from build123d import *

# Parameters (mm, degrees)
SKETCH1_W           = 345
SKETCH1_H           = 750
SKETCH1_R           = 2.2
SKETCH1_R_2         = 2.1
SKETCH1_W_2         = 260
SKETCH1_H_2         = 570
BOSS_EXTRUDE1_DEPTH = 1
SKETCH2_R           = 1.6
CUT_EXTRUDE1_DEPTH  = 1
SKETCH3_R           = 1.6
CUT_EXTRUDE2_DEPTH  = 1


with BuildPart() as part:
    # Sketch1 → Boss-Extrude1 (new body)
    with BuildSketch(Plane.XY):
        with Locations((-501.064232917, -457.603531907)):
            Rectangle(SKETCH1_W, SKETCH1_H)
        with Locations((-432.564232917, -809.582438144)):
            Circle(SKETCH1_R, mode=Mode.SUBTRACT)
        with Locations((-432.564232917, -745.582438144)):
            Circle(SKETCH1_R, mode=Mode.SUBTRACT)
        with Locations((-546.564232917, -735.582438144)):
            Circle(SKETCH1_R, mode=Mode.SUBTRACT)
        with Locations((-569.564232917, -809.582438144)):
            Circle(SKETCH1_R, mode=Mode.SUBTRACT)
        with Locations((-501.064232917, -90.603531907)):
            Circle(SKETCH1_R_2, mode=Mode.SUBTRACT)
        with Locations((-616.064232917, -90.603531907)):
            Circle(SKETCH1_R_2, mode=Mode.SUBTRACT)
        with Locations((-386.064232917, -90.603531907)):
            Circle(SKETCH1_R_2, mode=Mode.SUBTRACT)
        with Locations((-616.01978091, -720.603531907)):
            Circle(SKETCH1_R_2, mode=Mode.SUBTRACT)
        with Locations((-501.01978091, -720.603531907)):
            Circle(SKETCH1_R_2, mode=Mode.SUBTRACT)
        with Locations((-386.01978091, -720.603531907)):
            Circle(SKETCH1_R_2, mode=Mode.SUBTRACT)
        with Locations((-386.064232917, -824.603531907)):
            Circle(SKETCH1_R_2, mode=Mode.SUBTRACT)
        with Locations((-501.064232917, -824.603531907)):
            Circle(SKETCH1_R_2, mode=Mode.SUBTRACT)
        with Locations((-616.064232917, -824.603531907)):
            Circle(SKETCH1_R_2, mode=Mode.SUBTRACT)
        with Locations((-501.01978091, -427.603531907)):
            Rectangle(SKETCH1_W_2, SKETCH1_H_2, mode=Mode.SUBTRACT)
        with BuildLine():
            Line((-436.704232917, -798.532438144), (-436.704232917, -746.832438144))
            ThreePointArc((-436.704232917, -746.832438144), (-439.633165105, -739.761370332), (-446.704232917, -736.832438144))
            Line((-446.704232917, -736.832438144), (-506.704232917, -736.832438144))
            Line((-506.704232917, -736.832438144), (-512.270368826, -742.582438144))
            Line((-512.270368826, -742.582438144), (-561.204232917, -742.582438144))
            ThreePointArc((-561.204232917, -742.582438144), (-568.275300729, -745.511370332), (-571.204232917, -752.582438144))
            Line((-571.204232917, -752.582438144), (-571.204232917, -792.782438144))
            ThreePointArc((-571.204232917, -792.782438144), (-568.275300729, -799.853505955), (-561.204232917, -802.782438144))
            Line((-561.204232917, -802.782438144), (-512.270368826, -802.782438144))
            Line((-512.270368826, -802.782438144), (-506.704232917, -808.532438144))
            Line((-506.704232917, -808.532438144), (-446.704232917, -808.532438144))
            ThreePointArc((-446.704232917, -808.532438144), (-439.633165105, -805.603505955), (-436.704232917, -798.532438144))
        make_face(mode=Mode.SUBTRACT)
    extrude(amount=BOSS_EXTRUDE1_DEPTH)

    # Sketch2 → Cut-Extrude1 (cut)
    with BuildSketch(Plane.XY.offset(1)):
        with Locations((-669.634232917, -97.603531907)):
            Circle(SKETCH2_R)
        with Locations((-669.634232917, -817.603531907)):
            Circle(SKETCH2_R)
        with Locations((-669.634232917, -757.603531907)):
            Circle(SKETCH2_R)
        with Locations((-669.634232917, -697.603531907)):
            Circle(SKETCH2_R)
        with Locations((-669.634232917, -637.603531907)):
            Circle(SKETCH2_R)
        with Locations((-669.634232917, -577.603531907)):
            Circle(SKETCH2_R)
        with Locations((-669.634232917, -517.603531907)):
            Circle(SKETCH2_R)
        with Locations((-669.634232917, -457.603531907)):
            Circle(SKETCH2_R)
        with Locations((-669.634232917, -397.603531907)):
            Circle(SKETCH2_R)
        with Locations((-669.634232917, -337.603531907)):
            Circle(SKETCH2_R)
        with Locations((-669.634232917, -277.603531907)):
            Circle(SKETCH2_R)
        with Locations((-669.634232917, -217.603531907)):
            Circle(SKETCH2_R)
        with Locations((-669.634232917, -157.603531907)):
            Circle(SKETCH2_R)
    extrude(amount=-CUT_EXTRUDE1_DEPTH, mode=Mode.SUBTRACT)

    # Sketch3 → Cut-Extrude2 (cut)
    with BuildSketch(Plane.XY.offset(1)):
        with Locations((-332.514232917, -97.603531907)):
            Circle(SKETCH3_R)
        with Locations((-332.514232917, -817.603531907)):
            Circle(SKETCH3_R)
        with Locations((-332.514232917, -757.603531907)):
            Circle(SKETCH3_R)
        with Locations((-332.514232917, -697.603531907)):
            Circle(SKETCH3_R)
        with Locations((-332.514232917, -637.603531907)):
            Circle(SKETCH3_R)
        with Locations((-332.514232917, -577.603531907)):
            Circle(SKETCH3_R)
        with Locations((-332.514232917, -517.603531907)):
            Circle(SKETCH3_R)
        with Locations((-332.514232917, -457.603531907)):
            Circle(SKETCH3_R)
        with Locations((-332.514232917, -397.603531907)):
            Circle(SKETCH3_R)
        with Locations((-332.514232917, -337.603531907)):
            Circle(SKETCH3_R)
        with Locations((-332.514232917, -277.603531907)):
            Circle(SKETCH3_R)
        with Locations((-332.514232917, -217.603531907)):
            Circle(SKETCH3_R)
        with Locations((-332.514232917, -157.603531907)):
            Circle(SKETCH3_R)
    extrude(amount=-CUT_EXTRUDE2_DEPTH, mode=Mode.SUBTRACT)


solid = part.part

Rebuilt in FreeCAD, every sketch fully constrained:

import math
import FreeCAD as App
import Part
import Sketcher

V = App.Vector


def add_polygon(sketch, points):
    """Adds a closed chain of lines whose ends are joined by coincident constraints."""
    first, n = sketch.GeometryCount, len(points)
    for a, b in zip(points, points[1:] + points[:1]):
        sketch.addGeometry(Part.LineSegment(App.Vector(*a, 0), App.Vector(*b, 0)), False)
    for i in range(n):
        sketch.addConstraint(Sketcher.Constraint("Coincident", first + i, 2, first + (i + 1) % n, 1))

doc = App.newDocument("Part")
body = doc.addObject("PartDesign::Body", "Body")

# Sketch on XY plane
sketch1 = body.newObject("Sketcher::SketchObject", "Sketch")
sketch1.AttachmentSupport = (doc.getObject("XY_Plane"), [""])
sketch1.MapMode = "FlatFace"
add_polygon(sketch1, [(-673.564233, -82.603532), (-673.564233, -832.603532), (-328.564233, -832.603532), (-328.564233, -82.603532)])  # lines 0-3
sketch1.addGeometry(Part.Circle(V(-616.064233, -824.603532, 0), V(0, 0, 1), 2.1), False)  # 4
sketch1.addGeometry(Part.Circle(V(-569.564233, -809.582438, 0), V(0, 0, 1), 2.2), False)  # 5
sketch1.addGeometry(Part.Circle(V(-616.019781, -720.603532, 0), V(0, 0, 1), 2.1), False)  # 6
sketch1.addGeometry(Part.Circle(V(-546.564233, -735.582438, 0), V(0, 0, 1), 2.2), False)  # 7
sketch1.addGeometry(Part.Circle(V(-501.064233, -824.603532, 0), V(0, 0, 1), 2.1), False)  # 8
sketch1.addGeometry(Part.LineSegment(V(-436.704233, -746.832438, 0), V(-436.704233, -798.532438, 0)), False)  # 9
sketch1.addGeometry(Part.ArcOfCircle(Part.Circle(V(-446.704233, -798.532438, 0), V(0, 0, 1), 10), math.radians(-90), math.radians(0)), False)  # 10
sketch1.addGeometry(Part.LineSegment(V(-446.704233, -808.532438, 0), V(-506.704233, -808.532438, 0)), False)  # 11
sketch1.addGeometry(Part.LineSegment(V(-506.704233, -808.532438, 0), V(-512.270369, -802.782438, 0)), False)  # 12
sketch1.addGeometry(Part.LineSegment(V(-512.270369, -802.782438, 0), V(-561.204233, -802.782438, 0)), False)  # 13
sketch1.addGeometry(Part.ArcOfCircle(Part.Circle(V(-561.204233, -792.782438, 0), V(0, 0, 1), 10), math.radians(-180), math.radians(-90)), False)  # 14
sketch1.addGeometry(Part.LineSegment(V(-571.204233, -792.782438, 0), V(-571.204233, -752.582438, 0)), False)  # 15
sketch1.addGeometry(Part.ArcOfCircle(Part.Circle(V(-561.204233, -752.582438, 0), V(0, 0, 1), 10), math.radians(90), math.radians(180)), False)  # 16
sketch1.addGeometry(Part.LineSegment(V(-561.204233, -742.582438, 0), V(-512.270369, -742.582438, 0)), False)  # 17
sketch1.addGeometry(Part.LineSegment(V(-512.270369, -742.582438, 0), V(-506.704233, -736.832438, 0)), False)  # 18
sketch1.addGeometry(Part.LineSegment(V(-506.704233, -736.832438, 0), V(-446.704233, -736.832438, 0)), False)  # 19
sketch1.addGeometry(Part.ArcOfCircle(Part.Circle(V(-446.704233, -746.832438, 0), V(0, 0, 1), 10), math.radians(0), math.radians(90)), False)  # 20
sketch1.addGeometry(Part.Circle(V(-501.019781, -720.603532, 0), V(0, 0, 1), 2.1), False)  # 21
sketch1.addGeometry(Part.Circle(V(-432.564233, -809.582438, 0), V(0, 0, 1), 2.2), False)  # 22
sketch1.addGeometry(Part.Circle(V(-432.564233, -745.582438, 0), V(0, 0, 1), 2.2), False)  # 23
sketch1.addGeometry(Part.Circle(V(-386.064233, -824.603532, 0), V(0, 0, 1), 2.1), False)  # 24
sketch1.addGeometry(Part.Circle(V(-386.019781, -720.603532, 0), V(0, 0, 1), 2.1), False)  # 25
sketch1.addGeometry(Part.Circle(V(-616.064233, -90.603532, 0), V(0, 0, 1), 2.1), False)  # 26
sketch1.addGeometry(Part.Circle(V(-501.064233, -90.603532, 0), V(0, 0, 1), 2.1), False)  # 27
add_polygon(sketch1, [(-371.019781, -712.603532), (-631.019781, -712.603532), (-631.019781, -142.603532), (-371.019781, -142.603532)])  # lines 28-31
sketch1.addGeometry(Part.Circle(V(-386.064233, -90.603532, 0), V(0, 0, 1), 2.1), False)  # 32
sketch1.addConstraint([
    Sketcher.Constraint("Tangent", 9, 2, 10, 2),
    Sketcher.Constraint("Tangent", 10, 1, 11, 1),
    Sketcher.Constraint("Coincident", 11, 2, 12, 1),
    Sketcher.Constraint("Coincident", 12, 2, 13, 1),
    Sketcher.Constraint("Tangent", 13, 2, 14, 2),
    Sketcher.Constraint("Tangent", 14, 1, 15, 1),
    Sketcher.Constraint("Tangent", 15, 2, 16, 2),
    Sketcher.Constraint("Tangent", 16, 1, 17, 1),
    Sketcher.Constraint("Coincident", 17, 2, 18, 1),
    Sketcher.Constraint("Coincident", 18, 2, 19, 1),
    Sketcher.Constraint("Tangent", 19, 2, 20, 2),
    Sketcher.Constraint("Tangent", 20, 1, 9, 1),
    Sketcher.Constraint("Vertical", 0),
    Sketcher.Constraint("Horizontal", 1),
    Sketcher.Constraint("Vertical", 2),
    Sketcher.Constraint("Horizontal", 3),
    Sketcher.Constraint("Vertical", 9),
    Sketcher.Constraint("Horizontal", 11),
    Sketcher.Constraint("Horizontal", 13),
    Sketcher.Constraint("Vertical", 15),
    Sketcher.Constraint("Horizontal", 17),
    Sketcher.Constraint("Horizontal", 19),
    Sketcher.Constraint("Horizontal", 28),
    Sketcher.Constraint("Vertical", 29),
    Sketcher.Constraint("Horizontal", 30),
    Sketcher.Constraint("Vertical", 31),
    Sketcher.Constraint("Equal", 4, 6),
    Sketcher.Constraint("Equal", 5, 7),
    Sketcher.Constraint("Equal", 6, 8),
    Sketcher.Constraint("Equal", 10, 14),
    Sketcher.Constraint("Equal", 14, 16),
    Sketcher.Constraint("Equal", 16, 20),
    Sketcher.Constraint("Equal", 8, 21),
    Sketcher.Constraint("Equal", 7, 22),
    Sketcher.Constraint("Equal", 22, 23),
    Sketcher.Constraint("Equal", 21, 24),
    Sketcher.Constraint("Equal", 24, 25),
    Sketcher.Constraint("Equal", 25, 26),
    Sketcher.Constraint("Equal", 26, 27),
    Sketcher.Constraint("Equal", 27, 32),
    Sketcher.Constraint("Horizontal", 4, 3, 8, 3),
    Sketcher.Constraint("Horizontal", 6, 3, 21, 3),
    Sketcher.Constraint("Horizontal", 5, 3, 22, 3),
    Sketcher.Constraint("Horizontal", 8, 3, 24, 3),
    Sketcher.Constraint("Horizontal", 21, 3, 25, 3),
    Sketcher.Constraint("Horizontal", 26, 3, 27, 3),
    Sketcher.Constraint("Horizontal", 27, 3, 32, 3),
    Sketcher.Constraint("Vertical", 22, 3, 23, 3),
    Sketcher.Constraint("Vertical", 4, 3, 26, 3),
    Sketcher.Constraint("Vertical", 8, 3, 27, 3),
    Sketcher.Constraint("Vertical", 24, 3, 32, 3),
    Sketcher.Constraint("Vertical", 12, 2, 17, 2),
    Sketcher.Constraint("Vertical", 11, 2, 18, 2),
    Sketcher.Constraint("Equal", 12, 18),
    Sketcher.Constraint("Radius", 10, 10.0),
    Sketcher.Constraint("Diameter", 4, 4.2),
    Sketcher.Constraint("Diameter", 5, 4.4),
    Sketcher.Constraint("DistanceX", 1, 1, 1, 2, 345.0),
    Sketcher.Constraint("DistanceX", 11, 2, 11, 1, 60.0),
    Sketcher.Constraint("DistanceX", 28, 2, 28, 1, 260.0),
    Sketcher.Constraint("DistanceY", 0, 2, 0, 1, 750.0),
    Sketcher.Constraint("DistanceY", 29, 1, 29, 2, 570.0),
    Sketcher.Constraint("DistanceY", 9, 2, 9, 1, 51.7),
    Sketcher.Constraint("DistanceY", 15, 1, 15, 2, 40.2),
    Sketcher.Constraint("DistanceY", 4, 3, 6, 3, 104.0),
    Sketcher.Constraint("DistanceX", 5, 3, 7, 3, 23.0),
    Sketcher.Constraint("DistanceY", 5, 3, 7, 3, 74.0),
    Sketcher.Constraint("DistanceX", 4, 3, 8, 3, 115.0),
    Sketcher.Constraint("DistanceY", 16, 3, 7, 3, 17.0),
    Sketcher.Constraint("DistanceY", 22, 3, 23, 3, 64.0),
    Sketcher.Constraint("DistanceX", 8, 3, 24, 3, 115.0),
    Sketcher.Constraint("DistanceY", 6, 3, 26, 3, 630.0),
    Sketcher.Constraint("DistanceY", 0, 2, 4, 3, 8.0),
    Sketcher.Constraint("DistanceX", 0, 2, 5, 3, 104.0),
    Sketcher.Constraint("DistanceX", 22, 3, 1, 2, 104.0),
    Sketcher.Constraint("DistanceX", 28, 2, 6, 3, 15.0),
    Sketcher.Constraint("DistanceY", 6, 3, 28, 2, 8.0),
    Sketcher.Constraint("DistanceX", 25, 3, 31, 2, 15.0),
    Sketcher.Constraint("DistanceX", 4, 3, 5, 3, 46.5),
    Sketcher.Constraint("DistanceX", 16, 3, 20, 3, 114.5),
    Sketcher.Constraint("DistanceX", 8, 3, 10, 3, 54.36),
    Sketcher.Constraint("DistanceX", 13, 2, 13, 1, 48.933864),
    Sketcher.Constraint("DistanceY", 4, 3, -1, 1, 824.603532),
    Sketcher.Constraint("DistanceY", 5, 3, -1, 1, 809.582438),
    Sketcher.Constraint("DistanceX", 6, 3, -1, 1, 616.019781),
    Sketcher.Constraint("DistanceX", 21, 3, -1, 1, 501.019781),
    Sketcher.Constraint("DistanceX", 12, 2, -1, 1, 512.270369),
])
pad1 = body.newObject("PartDesign::Pad", "Pad")
pad1.Profile = sketch1
pad1.Length = 1

# Sketch on XY plane
sketch2 = body.newObject("Sketcher::SketchObject", "Sketch001")
sketch2.AttachmentSupport = (doc.getObject("XY_Plane"), [""])
sketch2.MapMode = "FlatFace"
sketch2.AttachmentOffset = App.Placement(V(0, 0, 1), App.Rotation())
sketch2.addGeometry([
    Part.Circle(V(-669.634233, -97.603532, 0), V(0, 0, 1), 1.6),  # 0
    Part.Circle(V(-669.634233, -817.603532, 0), V(0, 0, 1), 1.6),  # 1
    Part.Circle(V(-669.634233, -757.603532, 0), V(0, 0, 1), 1.6),  # 2
    Part.Circle(V(-669.634233, -697.603532, 0), V(0, 0, 1), 1.6),  # 3
    Part.Circle(V(-669.634233, -637.603532, 0), V(0, 0, 1), 1.6),  # 4
    Part.Circle(V(-669.634233, -577.603532, 0), V(0, 0, 1), 1.6),  # 5
    Part.Circle(V(-669.634233, -517.603532, 0), V(0, 0, 1), 1.6),  # 6
    Part.Circle(V(-669.634233, -457.603532, 0), V(0, 0, 1), 1.6),  # 7
    Part.Circle(V(-669.634233, -397.603532, 0), V(0, 0, 1), 1.6),  # 8
    Part.Circle(V(-669.634233, -337.603532, 0), V(0, 0, 1), 1.6),  # 9
    Part.Circle(V(-669.634233, -277.603532, 0), V(0, 0, 1), 1.6),  # 10
    Part.Circle(V(-669.634233, -217.603532, 0), V(0, 0, 1), 1.6),  # 11
    Part.Circle(V(-669.634233, -157.603532, 0), V(0, 0, 1), 1.6),  # 12
], False)
sketch2.addConstraint([
    Sketcher.Constraint("Equal", 0, 1),
    Sketcher.Constraint("Equal", 1, 2),
    Sketcher.Constraint("Equal", 2, 3),
    Sketcher.Constraint("Equal", 3, 4),
    Sketcher.Constraint("Equal", 4, 5),
    Sketcher.Constraint("Equal", 5, 6),
    Sketcher.Constraint("Equal", 6, 7),
    Sketcher.Constraint("Equal", 7, 8),
    Sketcher.Constraint("Equal", 8, 9),
    Sketcher.Constraint("Equal", 9, 10),
    Sketcher.Constraint("Equal", 10, 11),
    Sketcher.Constraint("Equal", 11, 12),
    Sketcher.Constraint("Vertical", 0, 3, 1, 3),
    Sketcher.Constraint("Vertical", 1, 3, 2, 3),
    Sketcher.Constraint("Vertical", 2, 3, 3, 3),
    Sketcher.Constraint("Vertical", 3, 3, 4, 3),
    Sketcher.Constraint("Vertical", 4, 3, 5, 3),
    Sketcher.Constraint("Vertical", 5, 3, 6, 3),
    Sketcher.Constraint("Vertical", 6, 3, 7, 3),
    Sketcher.Constraint("Vertical", 7, 3, 8, 3),
    Sketcher.Constraint("Vertical", 8, 3, 9, 3),
    Sketcher.Constraint("Vertical", 9, 3, 10, 3),
    Sketcher.Constraint("Vertical", 10, 3, 11, 3),
    Sketcher.Constraint("Vertical", 11, 3, 12, 3),
    Sketcher.Constraint("Diameter", 0, 3.2),
    Sketcher.Constraint("DistanceY", 1, 3, 0, 3, 720.0),
    Sketcher.Constraint("DistanceY", 1, 3, 2, 3, 60.0),
    Sketcher.Constraint("DistanceY", 2, 3, 3, 3, 60.0),
    Sketcher.Constraint("DistanceY", 3, 3, 4, 3, 60.0),
    Sketcher.Constraint("DistanceY", 4, 3, 5, 3, 60.0),
    Sketcher.Constraint("DistanceY", 5, 3, 6, 3, 60.0),
    Sketcher.Constraint("DistanceY", 6, 3, 7, 3, 60.0),
    Sketcher.Constraint("DistanceY", 7, 3, 8, 3, 60.0),
    Sketcher.Constraint("DistanceY", 8, 3, 9, 3, 60.0),
    Sketcher.Constraint("DistanceY", 9, 3, 10, 3, 60.0),
    Sketcher.Constraint("DistanceY", 10, 3, 11, 3, 60.0),
    Sketcher.Constraint("DistanceY", 12, 3, 0, 3, 60.0),
    Sketcher.Constraint("DistanceY", 0, 3, -1, 1, 97.603532),
    Sketcher.Constraint("DistanceX", 0, 3, -1, 1, 669.634233),
])
pocket1 = body.newObject("PartDesign::Pocket", "Pocket")
pocket1.Profile = sketch2
pocket1.Length = 1

# Sketch on XY plane
sketch3 = body.newObject("Sketcher::SketchObject", "Sketch002")
sketch3.AttachmentSupport = (doc.getObject("XY_Plane"), [""])
sketch3.MapMode = "FlatFace"
sketch3.AttachmentOffset = App.Placement(V(0, 0, 1), App.Rotation())
sketch3.addGeometry([
    Part.Circle(V(-332.514233, -97.603532, 0), V(0, 0, 1), 1.6),  # 0
    Part.Circle(V(-332.514233, -817.603532, 0), V(0, 0, 1), 1.6),  # 1
    Part.Circle(V(-332.514233, -757.603532, 0), V(0, 0, 1), 1.6),  # 2
    Part.Circle(V(-332.514233, -697.603532, 0), V(0, 0, 1), 1.6),  # 3
    Part.Circle(V(-332.514233, -637.603532, 0), V(0, 0, 1), 1.6),  # 4
    Part.Circle(V(-332.514233, -577.603532, 0), V(0, 0, 1), 1.6),  # 5
    Part.Circle(V(-332.514233, -517.603532, 0), V(0, 0, 1), 1.6),  # 6
    Part.Circle(V(-332.514233, -457.603532, 0), V(0, 0, 1), 1.6),  # 7
    Part.Circle(V(-332.514233, -397.603532, 0), V(0, 0, 1), 1.6),  # 8
    Part.Circle(V(-332.514233, -337.603532, 0), V(0, 0, 1), 1.6),  # 9
    Part.Circle(V(-332.514233, -277.603532, 0), V(0, 0, 1), 1.6),  # 10
    Part.Circle(V(-332.514233, -217.603532, 0), V(0, 0, 1), 1.6),  # 11
    Part.Circle(V(-332.514233, -157.603532, 0), V(0, 0, 1), 1.6),  # 12
], False)
sketch3.addConstraint([
    Sketcher.Constraint("Equal", 0, 1),
    Sketcher.Constraint("Equal", 1, 2),
    Sketcher.Constraint("Equal", 2, 3),
    Sketcher.Constraint("Equal", 3, 4),
    Sketcher.Constraint("Equal", 4, 5),
    Sketcher.Constraint("Equal", 5, 6),
    Sketcher.Constraint("Equal", 6, 7),
    Sketcher.Constraint("Equal", 7, 8),
    Sketcher.Constraint("Equal", 8, 9),
    Sketcher.Constraint("Equal", 9, 10),
    Sketcher.Constraint("Equal", 10, 11),
    Sketcher.Constraint("Equal", 11, 12),
    Sketcher.Constraint("Vertical", 0, 3, 1, 3),
    Sketcher.Constraint("Vertical", 1, 3, 2, 3),
    Sketcher.Constraint("Vertical", 2, 3, 3, 3),
    Sketcher.Constraint("Vertical", 3, 3, 4, 3),
    Sketcher.Constraint("Vertical", 4, 3, 5, 3),
    Sketcher.Constraint("Vertical", 5, 3, 6, 3),
    Sketcher.Constraint("Vertical", 6, 3, 7, 3),
    Sketcher.Constraint("Vertical", 7, 3, 8, 3),
    Sketcher.Constraint("Vertical", 8, 3, 9, 3),
    Sketcher.Constraint("Vertical", 9, 3, 10, 3),
    Sketcher.Constraint("Vertical", 10, 3, 11, 3),
    Sketcher.Constraint("Vertical", 11, 3, 12, 3),
    Sketcher.Constraint("Diameter", 0, 3.2),
    Sketcher.Constraint("DistanceY", 1, 3, 0, 3, 720.0),
    Sketcher.Constraint("DistanceY", 1, 3, 2, 3, 60.0),
    Sketcher.Constraint("DistanceY", 2, 3, 3, 3, 60.0),
    Sketcher.Constraint("DistanceY", 3, 3, 4, 3, 60.0),
    Sketcher.Constraint("DistanceY", 4, 3, 5, 3, 60.0),
    Sketcher.Constraint("DistanceY", 5, 3, 6, 3, 60.0),
    Sketcher.Constraint("DistanceY", 6, 3, 7, 3, 60.0),
    Sketcher.Constraint("DistanceY", 7, 3, 8, 3, 60.0),
    Sketcher.Constraint("DistanceY", 8, 3, 9, 3, 60.0),
    Sketcher.Constraint("DistanceY", 9, 3, 10, 3, 60.0),
    Sketcher.Constraint("DistanceY", 10, 3, 11, 3, 60.0),
    Sketcher.Constraint("DistanceY", 12, 3, 0, 3, 60.0),
    Sketcher.Constraint("DistanceY", 0, 3, -1, 1, 97.603532),
    Sketcher.Constraint("DistanceX", 0, 3, -1, 1, 332.514233),
])
pocket2 = body.newObject("PartDesign::Pocket", "Pocket001")
pocket2.Profile = sketch3
pocket2.Length = 1

doc.recompute()
